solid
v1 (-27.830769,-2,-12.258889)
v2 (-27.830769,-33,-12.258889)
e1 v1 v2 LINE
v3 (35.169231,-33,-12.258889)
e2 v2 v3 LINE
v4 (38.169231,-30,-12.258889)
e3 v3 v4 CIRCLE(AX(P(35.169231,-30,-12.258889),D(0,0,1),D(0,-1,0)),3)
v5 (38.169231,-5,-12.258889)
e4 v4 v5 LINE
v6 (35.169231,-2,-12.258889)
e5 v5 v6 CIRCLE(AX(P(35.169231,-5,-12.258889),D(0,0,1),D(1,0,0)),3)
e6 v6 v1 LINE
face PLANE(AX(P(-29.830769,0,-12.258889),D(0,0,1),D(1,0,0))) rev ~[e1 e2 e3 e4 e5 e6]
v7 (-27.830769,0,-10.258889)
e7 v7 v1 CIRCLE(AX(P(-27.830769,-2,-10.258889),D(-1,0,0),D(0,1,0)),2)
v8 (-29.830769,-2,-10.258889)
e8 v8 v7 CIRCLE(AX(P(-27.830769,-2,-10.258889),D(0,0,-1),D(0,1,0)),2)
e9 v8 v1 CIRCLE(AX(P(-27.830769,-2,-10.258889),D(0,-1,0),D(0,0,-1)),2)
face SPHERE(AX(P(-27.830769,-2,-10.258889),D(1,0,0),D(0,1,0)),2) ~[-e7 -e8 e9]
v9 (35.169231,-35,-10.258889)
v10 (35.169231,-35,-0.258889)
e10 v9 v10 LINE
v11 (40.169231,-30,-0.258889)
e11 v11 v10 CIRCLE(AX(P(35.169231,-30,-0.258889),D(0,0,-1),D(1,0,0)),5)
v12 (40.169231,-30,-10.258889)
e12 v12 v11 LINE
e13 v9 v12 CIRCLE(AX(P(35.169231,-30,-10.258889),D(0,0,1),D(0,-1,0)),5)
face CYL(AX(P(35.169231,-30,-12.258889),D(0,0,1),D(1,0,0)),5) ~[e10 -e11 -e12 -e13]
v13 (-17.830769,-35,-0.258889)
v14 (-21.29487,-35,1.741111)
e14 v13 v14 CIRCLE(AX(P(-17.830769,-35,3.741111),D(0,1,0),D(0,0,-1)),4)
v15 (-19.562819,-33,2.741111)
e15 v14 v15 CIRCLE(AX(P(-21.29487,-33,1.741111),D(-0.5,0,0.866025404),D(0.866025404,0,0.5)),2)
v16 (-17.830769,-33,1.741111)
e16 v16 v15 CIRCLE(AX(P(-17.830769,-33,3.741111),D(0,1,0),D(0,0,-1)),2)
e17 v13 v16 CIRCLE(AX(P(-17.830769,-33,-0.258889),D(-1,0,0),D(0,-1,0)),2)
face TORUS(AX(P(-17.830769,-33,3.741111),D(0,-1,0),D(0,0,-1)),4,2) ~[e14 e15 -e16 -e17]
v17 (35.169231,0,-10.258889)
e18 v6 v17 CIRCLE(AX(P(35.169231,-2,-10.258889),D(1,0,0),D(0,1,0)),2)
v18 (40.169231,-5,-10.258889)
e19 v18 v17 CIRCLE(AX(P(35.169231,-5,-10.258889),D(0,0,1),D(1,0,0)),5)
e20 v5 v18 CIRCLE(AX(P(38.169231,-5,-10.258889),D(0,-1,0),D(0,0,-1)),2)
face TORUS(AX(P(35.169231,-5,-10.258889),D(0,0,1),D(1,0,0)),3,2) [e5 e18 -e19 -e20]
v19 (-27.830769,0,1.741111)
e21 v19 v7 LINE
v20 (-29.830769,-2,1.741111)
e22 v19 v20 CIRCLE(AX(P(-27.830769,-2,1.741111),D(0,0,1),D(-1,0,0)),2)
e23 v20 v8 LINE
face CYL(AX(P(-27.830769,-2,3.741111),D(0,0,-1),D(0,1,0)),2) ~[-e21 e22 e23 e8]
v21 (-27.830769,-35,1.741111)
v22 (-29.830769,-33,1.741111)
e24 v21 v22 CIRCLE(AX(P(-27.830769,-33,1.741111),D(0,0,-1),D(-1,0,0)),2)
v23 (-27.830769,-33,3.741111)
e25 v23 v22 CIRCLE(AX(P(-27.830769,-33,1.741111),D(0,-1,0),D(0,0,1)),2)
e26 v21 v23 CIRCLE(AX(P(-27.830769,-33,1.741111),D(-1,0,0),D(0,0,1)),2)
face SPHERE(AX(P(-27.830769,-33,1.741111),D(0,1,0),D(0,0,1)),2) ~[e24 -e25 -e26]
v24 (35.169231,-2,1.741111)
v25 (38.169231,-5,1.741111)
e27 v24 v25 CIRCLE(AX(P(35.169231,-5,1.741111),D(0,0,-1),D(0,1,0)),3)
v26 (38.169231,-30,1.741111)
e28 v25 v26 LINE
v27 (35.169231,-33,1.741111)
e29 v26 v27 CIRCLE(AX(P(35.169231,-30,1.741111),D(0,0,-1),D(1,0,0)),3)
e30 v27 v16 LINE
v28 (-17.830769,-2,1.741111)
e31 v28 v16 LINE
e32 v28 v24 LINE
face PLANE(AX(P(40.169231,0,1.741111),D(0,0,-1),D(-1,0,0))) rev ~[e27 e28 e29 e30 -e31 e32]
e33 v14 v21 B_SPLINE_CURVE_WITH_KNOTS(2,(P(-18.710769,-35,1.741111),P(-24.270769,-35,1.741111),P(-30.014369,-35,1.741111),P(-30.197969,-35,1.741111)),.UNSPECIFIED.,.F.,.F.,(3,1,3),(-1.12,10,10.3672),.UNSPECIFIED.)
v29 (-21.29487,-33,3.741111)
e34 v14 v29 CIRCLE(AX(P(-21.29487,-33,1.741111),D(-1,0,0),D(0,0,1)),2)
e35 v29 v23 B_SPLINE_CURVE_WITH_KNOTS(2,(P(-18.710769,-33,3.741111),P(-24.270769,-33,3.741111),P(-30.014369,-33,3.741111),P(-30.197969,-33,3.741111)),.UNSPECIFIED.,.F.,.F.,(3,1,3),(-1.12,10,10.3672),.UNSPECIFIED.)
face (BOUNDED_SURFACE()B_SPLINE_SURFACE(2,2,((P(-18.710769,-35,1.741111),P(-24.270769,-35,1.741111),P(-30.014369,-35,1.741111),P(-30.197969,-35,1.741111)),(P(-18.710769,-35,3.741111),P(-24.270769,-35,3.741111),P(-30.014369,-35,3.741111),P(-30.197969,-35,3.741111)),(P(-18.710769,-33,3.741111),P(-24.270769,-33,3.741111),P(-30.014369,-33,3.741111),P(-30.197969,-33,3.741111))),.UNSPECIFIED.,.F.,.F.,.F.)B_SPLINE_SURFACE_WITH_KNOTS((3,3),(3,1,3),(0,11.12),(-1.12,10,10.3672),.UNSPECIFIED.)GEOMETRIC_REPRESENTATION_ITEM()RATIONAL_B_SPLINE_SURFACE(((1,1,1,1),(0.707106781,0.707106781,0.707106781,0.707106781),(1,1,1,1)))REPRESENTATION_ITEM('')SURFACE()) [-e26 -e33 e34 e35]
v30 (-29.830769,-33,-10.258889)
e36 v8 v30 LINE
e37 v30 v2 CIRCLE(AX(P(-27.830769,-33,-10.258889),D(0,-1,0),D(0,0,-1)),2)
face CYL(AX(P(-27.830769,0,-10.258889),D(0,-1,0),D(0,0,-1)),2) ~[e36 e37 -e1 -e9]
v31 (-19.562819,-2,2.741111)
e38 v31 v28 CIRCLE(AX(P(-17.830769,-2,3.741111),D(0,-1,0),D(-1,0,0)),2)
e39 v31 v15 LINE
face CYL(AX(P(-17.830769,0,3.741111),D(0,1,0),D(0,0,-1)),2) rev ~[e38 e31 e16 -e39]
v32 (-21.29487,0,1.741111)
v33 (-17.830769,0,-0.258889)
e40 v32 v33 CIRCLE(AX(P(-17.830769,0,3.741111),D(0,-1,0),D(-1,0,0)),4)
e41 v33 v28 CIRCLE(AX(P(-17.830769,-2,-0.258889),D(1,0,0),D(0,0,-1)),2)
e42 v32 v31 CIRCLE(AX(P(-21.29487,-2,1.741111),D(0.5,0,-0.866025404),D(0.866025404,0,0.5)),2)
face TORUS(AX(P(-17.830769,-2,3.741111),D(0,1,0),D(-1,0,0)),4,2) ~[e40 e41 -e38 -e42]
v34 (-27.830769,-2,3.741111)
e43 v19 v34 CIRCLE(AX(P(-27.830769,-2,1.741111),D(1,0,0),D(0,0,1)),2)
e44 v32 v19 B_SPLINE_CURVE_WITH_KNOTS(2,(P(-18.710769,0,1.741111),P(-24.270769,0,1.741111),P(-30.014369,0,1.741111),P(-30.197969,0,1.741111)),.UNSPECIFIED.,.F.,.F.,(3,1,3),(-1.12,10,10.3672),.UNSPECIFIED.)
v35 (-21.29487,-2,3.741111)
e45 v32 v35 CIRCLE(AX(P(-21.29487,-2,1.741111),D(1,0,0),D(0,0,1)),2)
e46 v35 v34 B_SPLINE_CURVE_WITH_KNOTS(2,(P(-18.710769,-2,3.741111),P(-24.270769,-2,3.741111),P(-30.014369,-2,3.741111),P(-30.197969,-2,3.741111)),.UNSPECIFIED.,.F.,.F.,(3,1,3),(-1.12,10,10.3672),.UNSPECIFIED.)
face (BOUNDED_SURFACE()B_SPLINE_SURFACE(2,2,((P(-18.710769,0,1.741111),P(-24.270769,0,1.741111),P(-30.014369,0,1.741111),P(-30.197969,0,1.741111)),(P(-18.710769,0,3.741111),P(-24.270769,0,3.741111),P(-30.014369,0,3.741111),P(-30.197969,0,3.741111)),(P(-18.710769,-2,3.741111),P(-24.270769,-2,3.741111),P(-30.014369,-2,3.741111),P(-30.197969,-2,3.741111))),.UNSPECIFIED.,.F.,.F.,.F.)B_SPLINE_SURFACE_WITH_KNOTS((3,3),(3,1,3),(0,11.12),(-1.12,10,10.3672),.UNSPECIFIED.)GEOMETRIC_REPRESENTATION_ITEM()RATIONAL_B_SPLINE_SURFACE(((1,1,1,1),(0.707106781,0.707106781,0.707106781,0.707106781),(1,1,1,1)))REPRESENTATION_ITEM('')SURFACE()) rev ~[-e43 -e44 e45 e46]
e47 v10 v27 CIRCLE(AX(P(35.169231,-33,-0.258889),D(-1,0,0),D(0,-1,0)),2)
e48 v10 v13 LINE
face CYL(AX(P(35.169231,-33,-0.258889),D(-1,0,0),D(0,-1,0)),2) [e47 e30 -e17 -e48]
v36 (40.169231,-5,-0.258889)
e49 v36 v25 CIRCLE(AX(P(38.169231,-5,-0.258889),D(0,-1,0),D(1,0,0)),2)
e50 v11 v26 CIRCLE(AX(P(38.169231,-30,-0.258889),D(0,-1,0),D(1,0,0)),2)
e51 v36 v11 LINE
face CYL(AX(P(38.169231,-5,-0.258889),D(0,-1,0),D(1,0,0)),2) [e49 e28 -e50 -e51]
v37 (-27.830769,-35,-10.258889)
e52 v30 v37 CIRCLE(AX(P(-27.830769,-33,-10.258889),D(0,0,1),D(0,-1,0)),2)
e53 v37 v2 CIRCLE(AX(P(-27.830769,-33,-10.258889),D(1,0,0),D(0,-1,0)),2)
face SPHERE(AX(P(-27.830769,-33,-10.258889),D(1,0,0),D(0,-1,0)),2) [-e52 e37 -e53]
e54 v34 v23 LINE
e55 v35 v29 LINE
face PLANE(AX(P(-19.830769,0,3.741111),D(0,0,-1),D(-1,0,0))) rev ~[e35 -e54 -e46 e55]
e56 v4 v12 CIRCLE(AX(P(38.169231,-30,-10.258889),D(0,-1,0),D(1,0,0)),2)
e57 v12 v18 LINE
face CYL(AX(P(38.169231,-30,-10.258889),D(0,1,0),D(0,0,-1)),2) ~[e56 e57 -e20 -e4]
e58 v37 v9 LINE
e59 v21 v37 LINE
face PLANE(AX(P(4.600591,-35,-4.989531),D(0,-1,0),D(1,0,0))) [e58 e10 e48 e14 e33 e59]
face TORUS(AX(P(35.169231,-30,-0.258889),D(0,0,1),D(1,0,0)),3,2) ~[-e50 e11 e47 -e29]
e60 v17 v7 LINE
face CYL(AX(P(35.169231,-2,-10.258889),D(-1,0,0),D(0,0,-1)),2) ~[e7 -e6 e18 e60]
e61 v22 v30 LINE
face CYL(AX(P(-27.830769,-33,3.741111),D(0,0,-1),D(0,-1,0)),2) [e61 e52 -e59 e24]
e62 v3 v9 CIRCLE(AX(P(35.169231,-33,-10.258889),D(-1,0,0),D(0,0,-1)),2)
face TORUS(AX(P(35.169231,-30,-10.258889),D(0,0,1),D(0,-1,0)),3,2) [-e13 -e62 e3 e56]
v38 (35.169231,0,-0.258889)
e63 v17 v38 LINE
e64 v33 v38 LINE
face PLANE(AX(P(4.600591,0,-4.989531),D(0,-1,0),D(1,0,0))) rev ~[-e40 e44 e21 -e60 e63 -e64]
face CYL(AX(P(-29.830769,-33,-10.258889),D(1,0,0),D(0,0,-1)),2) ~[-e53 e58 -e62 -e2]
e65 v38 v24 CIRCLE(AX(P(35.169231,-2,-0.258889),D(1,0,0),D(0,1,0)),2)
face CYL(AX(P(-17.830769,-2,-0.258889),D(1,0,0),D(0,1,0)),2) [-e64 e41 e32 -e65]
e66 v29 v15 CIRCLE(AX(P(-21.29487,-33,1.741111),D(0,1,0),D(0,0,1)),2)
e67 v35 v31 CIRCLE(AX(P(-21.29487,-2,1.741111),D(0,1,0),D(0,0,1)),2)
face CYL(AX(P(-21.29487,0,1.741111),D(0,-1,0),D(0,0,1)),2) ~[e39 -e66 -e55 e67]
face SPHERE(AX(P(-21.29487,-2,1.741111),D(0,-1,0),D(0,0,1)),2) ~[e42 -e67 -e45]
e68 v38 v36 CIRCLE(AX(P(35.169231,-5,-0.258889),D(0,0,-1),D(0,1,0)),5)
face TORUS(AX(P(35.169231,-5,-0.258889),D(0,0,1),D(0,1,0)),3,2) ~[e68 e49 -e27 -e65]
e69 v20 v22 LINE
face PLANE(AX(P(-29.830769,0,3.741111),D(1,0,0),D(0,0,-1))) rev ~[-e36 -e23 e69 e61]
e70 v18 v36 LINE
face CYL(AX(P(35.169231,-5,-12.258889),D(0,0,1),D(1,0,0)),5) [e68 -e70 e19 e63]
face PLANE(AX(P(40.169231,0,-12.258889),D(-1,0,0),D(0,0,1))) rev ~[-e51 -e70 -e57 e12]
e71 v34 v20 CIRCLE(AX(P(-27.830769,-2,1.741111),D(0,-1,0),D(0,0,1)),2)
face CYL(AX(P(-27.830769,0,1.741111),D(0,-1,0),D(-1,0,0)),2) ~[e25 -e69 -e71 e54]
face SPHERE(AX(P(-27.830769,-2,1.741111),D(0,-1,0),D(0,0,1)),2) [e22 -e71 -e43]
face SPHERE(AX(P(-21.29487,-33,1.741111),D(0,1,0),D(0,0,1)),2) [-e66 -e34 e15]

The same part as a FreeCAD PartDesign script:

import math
import FreeCAD as App
import Part
import Sketcher

V = App.Vector


def edges_at(feature, points):
    """Names of the edges that pass closest to the given points."""
    edges = feature.Shape.Edges
    near = lambda p: min(range(len(edges)), key=lambda i: edges[i].distToShape(Part.Vertex(*p))[0])
    return sorted({f"Edge{near(p) + 1}" for p in points})

doc = App.newDocument("Part")
body = doc.addObject("PartDesign::Body", "Body")

# Sketch on XZ plane
sketch1 = body.newObject("Sketcher::SketchObject", "Sketch")
sketch1.AttachmentSupport = (doc.getObject("XZ_Plane"), [""])
sketch1.MapMode = "FlatFace"
sketch1.addGeometry(Part.LineSegment(V(-19.8, 3.7, 0), V(-29.8, 3.7, 0)), False)
sketch1.addGeometry(Part.LineSegment(V(-29.8, 3.7, 0), V(-29.8, -12.3, 0)), False)
sketch1.addGeometry(Part.LineSegment(V(-29.8, -12.3, 0), V(40.2, -12.3, 0)), False)
sketch1.addGeometry(Part.LineSegment(V(40.2, -12.3, 0), V(40.2, 1.7, 0)), False)
sketch1.addGeometry(Part.LineSegment(V(40.2, 1.7, 0), V(-17.8, 1.7, 0)), False)
sketch1.addGeometry(Part.ArcOfCircle(Part.Circle(V(-17.8, 3.7, 0), V(0, 0, 1), 2), math.radians(180), math.radians(270)), False)
sketch1.addConstraint(Sketcher.Constraint("Coincident", 0, 2, 1, 1))
sketch1.addConstraint(Sketcher.Constraint("Coincident", 1, 2, 2, 1))
sketch1.addConstraint(Sketcher.Constraint("Coincident", 2, 2, 3, 1))
sketch1.addConstraint(Sketcher.Constraint("Coincident", 3, 2, 4, 1))
sketch1.addConstraint(Sketcher.Constraint("Tangent", 4, 2, 5, 2))
sketch1.addConstraint(Sketcher.Constraint("Coincident", 5, 1, 0, 1))
sketch1.addConstraint(Sketcher.Constraint("Horizontal", 0))
sketch1.addConstraint(Sketcher.Constraint("Vertical", 1))
sketch1.addConstraint(Sketcher.Constraint("Horizontal", 2))
sketch1.addConstraint(Sketcher.Constraint("Vertical", 3))
sketch1.addConstraint(Sketcher.Constraint("Horizontal", 4))
sketch1.addConstraint(Sketcher.Constraint("Horizontal", 5, 3, 0, 2))
sketch1.addConstraint(Sketcher.Constraint("Radius", 5, 2.0))
sketch1.addConstraint(Sketcher.Constraint("DistanceX", 0, 2, 0, 1, 10.0))
sketch1.addConstraint(Sketcher.Constraint("DistanceX", 2, 1, 2, 2, 70.0))
sketch1.addConstraint(Sketcher.Constraint("DistanceY", 1, 2, 1, 1, 16.0))
sketch1.addConstraint(Sketcher.Constraint("DistanceX", 5, 3, -1, 1, 17.830769))
sketch1.addConstraint(Sketcher.Constraint("DistanceY", -1, 1, 5, 3, 3.741111))
pad1 = body.newObject("PartDesign::Pad", "Pad")
pad1.Profile = sketch1
pad1.Length = 35
doc.recompute()

fillet = body.newObject("PartDesign::Fillet", "Fillet")
fillet.Base = (pad1, edges_at(pad1, [(40.169, -35, -5.259), (40.169, 0, -5.259)]))
fillet.Radius = 5
doc.recompute()

fillet2 = body.newObject("PartDesign::Fillet", "Fillet001")
fillet2.Base = (fillet, edges_at(fillet, [
    (-19.831, -17.5, 3.741),
    (-29.831, -17.5, 3.741),
    (-24.831, 0, 3.741),
    (-24.831, -35, 3.741),
    (2.669, -35, -12.259),
    (35.169, -35, -5.259),
    (-29.831, -35, -4.259),
    (8.669, -35, 1.741),
    (-19.245, -35, 2.327),
    (2.669, 0, -12.259),
    (35.169, 0, -5.259),
    (-29.831, 0, -4.259),
    (8.669, 0, 1.741),
    (-19.245, 0, 2.327),
    (-29.831, -17.5, -12.259),
]))
fillet2.Radius = 2

doc.recompute()
